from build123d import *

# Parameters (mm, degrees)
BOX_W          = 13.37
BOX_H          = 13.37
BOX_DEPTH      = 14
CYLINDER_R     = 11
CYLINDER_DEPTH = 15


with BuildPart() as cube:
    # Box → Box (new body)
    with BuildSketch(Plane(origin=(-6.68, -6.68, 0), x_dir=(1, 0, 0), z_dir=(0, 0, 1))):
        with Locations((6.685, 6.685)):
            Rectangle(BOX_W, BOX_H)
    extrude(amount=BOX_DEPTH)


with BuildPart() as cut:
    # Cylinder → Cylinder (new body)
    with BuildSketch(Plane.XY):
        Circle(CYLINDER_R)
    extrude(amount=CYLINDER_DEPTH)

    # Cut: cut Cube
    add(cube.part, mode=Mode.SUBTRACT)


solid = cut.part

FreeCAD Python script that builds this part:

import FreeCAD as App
import Part
import Sketcher

V = App.Vector
Q = App.Units.Quantity

doc = App.newDocument("Part")
body = doc.addObject("PartDesign::Body", "Body")

# Sketch on XY plane
sketch1 = body.newObject("Sketcher::SketchObject", "Sketch")
sketch1.AttachmentSupport = (doc.getObject("XY_Plane"), [""])
sketch1.MapMode = "FlatFace"
sketch1.addGeometry([
    Part.LineSegment(V(-7, 7, 0), V(-7, -7, 0)),
    Part.LineSegment(V(-7, -7, 0), V(7, -7, 0)),
    Part.LineSegment(V(7, -7, 0), V(7, 7, 0)),
    Part.LineSegment(V(7, 7, 0), V(-7, 7, 0)),
], False)
sketch1.addConstraint([
    Sketcher.Constraint("Coincident", 0, 2, 1, 1),
    Sketcher.Constraint("Coincident", 1, 2, 2, 1),
    Sketcher.Constraint("Coincident", 2, 2, 3, 1),
    Sketcher.Constraint("Coincident", 3, 2, 0, 1),
    Sketcher.Constraint("Vertical", 0),
    Sketcher.Constraint("Horizontal", 1),
    Sketcher.Constraint("Vertical", 2),
    Sketcher.Constraint("Horizontal", 3),
    Sketcher.Constraint("Equal", 3, 0),
    Sketcher.Constraint("DistanceX", 1, 1, 1, 2, Q("13.37 mm")),
    Sketcher.Constraint("DistanceX", 0, 2, -1, 1, Q("6.68 mm")),
    Sketcher.Constraint("DistanceY", 0, 2, -1, 1, Q("6.68 mm")),
])
pad1 = body.newObject("PartDesign::Pad", "Pad")
pad1.Profile = sketch1
pad1.Length = 14
body2 = doc.addObject("PartDesign::Body", "Body001")

# Sketch on XY plane
sketch2 = body2.newObject("Sketcher::SketchObject", "Sketch001")
sketch2.AttachmentSupport = (doc.getObject("XY_Plane001"), [""])
sketch2.MapMode = "FlatFace"
sketch2.addGeometry(Part.Circle(V(0, 0, 0), V(0, 0, 1), 11), False)
sketch2.addConstraint([
    Sketcher.Constraint("Coincident", 0, 3, -1, 1),
    Sketcher.Constraint("Diameter", 0, Q("22 mm")),
])
pad2 = body2.newObject("PartDesign::Pad", "Pad001")
pad2.Profile = sketch2
pad2.Length = 15
doc.recompute()

boolean = body2.newObject("PartDesign::Boolean", "Boolean")
boolean.Type = "Cut"
boolean.addObjects([body])

doc.recompute()
